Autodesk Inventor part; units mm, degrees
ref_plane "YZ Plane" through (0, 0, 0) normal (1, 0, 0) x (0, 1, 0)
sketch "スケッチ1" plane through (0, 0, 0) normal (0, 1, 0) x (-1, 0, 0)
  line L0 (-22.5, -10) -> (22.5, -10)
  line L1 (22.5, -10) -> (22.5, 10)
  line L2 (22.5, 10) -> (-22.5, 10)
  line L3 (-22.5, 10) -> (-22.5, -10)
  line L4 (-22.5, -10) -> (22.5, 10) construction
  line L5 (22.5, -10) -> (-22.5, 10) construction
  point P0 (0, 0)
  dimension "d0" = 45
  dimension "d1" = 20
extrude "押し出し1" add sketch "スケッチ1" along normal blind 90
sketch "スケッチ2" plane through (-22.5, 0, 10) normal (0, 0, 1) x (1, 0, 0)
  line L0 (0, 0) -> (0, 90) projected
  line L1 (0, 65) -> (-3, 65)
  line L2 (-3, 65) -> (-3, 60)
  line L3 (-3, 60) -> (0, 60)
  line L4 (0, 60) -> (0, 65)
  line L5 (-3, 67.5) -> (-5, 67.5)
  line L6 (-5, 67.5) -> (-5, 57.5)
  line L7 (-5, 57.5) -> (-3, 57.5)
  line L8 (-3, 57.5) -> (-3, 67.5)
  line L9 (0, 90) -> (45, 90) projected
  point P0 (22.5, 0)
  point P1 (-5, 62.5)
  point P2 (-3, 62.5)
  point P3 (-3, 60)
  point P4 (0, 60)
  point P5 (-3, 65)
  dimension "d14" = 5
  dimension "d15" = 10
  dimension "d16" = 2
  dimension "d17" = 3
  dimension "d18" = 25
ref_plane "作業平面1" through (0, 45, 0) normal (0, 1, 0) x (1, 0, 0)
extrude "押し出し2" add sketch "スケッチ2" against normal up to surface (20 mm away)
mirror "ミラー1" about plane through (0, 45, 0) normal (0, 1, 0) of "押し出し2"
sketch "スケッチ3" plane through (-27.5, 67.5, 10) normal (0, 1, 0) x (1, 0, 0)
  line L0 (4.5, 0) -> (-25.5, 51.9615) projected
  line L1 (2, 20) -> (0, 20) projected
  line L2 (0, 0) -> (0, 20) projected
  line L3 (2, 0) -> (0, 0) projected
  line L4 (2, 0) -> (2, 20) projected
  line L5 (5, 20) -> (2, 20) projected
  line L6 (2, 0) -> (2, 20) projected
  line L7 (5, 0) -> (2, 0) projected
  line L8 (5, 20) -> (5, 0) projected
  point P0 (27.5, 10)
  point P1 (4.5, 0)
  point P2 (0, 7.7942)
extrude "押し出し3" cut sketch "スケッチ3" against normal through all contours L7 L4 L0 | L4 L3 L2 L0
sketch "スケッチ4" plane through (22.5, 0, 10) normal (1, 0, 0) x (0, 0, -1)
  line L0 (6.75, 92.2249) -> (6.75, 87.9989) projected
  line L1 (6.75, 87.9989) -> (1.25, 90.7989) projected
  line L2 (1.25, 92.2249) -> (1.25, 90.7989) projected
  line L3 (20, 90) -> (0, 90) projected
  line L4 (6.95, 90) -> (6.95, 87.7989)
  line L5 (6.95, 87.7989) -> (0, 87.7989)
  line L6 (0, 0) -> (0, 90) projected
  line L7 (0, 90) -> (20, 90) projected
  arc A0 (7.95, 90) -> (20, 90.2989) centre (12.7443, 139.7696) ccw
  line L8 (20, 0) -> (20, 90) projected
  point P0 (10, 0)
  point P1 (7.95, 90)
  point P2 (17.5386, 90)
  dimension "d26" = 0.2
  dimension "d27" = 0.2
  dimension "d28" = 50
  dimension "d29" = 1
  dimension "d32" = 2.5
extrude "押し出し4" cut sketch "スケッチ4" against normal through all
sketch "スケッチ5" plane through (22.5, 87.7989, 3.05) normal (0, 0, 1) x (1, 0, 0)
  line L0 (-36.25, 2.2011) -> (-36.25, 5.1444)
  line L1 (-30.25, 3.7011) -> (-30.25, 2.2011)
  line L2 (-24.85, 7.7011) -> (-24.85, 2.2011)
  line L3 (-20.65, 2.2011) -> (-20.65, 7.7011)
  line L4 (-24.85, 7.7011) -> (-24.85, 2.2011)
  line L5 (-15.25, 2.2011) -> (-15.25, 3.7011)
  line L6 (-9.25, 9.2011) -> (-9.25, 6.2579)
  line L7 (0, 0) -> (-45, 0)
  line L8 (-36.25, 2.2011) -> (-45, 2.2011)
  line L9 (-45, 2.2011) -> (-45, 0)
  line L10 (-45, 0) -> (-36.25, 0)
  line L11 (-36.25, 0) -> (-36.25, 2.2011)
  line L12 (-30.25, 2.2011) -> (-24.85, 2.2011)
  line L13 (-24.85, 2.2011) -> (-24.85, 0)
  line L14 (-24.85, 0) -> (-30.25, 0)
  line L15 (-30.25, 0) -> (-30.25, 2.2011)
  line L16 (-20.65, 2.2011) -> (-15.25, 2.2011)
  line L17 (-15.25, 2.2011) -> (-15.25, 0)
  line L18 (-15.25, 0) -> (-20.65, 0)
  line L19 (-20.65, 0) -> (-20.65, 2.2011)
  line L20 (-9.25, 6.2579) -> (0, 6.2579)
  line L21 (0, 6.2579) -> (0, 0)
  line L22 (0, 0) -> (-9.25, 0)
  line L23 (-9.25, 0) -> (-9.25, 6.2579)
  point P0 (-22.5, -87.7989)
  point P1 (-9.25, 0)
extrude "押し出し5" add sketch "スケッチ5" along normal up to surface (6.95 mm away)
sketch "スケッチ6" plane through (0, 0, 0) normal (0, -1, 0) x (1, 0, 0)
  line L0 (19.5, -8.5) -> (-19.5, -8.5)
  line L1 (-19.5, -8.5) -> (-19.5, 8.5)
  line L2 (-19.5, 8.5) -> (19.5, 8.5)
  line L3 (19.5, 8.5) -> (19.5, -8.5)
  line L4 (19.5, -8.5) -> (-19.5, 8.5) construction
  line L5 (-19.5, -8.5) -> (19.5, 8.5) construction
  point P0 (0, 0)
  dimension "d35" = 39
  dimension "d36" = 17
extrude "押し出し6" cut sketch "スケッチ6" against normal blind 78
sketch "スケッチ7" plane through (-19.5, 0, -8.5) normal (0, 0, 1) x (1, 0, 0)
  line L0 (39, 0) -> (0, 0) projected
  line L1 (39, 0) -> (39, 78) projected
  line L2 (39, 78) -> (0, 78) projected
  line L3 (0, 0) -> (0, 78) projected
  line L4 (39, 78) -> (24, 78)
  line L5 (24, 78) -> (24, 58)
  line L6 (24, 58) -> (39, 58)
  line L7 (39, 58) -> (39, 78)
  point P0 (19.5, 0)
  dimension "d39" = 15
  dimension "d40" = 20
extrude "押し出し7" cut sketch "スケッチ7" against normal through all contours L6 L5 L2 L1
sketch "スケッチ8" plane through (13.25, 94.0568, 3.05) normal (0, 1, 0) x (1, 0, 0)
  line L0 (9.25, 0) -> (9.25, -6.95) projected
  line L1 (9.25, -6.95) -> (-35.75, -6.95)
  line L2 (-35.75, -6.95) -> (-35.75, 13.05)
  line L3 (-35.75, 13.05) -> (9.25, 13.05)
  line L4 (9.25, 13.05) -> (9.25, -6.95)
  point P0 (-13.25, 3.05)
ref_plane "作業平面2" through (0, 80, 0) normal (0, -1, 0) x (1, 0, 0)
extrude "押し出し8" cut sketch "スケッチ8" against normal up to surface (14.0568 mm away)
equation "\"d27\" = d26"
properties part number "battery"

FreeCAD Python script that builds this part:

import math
import FreeCAD as App
import Part
import Sketcher
Q = App.Units.Quantity

doc = App.newDocument("Part")
body = doc.addObject("PartDesign::Body", "Body")

sketch1 = body.newObject("Sketcher::SketchObject", "Sketch")
sketch1.AttachmentSupport = (doc.getObject("XZ_Plane"), [""])
sketch1.MapMode = "FlatFace"
sketch1.addGeometry([
    Part.LineSegment(App.Vector(22, 10, 0), App.Vector(22, -10, 0)),
    Part.LineSegment(App.Vector(22, -10, 0), App.Vector(-22, -10, 0)),
    Part.LineSegment(App.Vector(-22, -10, 0), App.Vector(-22, 10, 0)),
    Part.LineSegment(App.Vector(-22, 10, 0), App.Vector(22, 10, 0)),
], False)
sketch1.addConstraint([
    Sketcher.Constraint("Coincident", 0, 2, 1, 1),
    Sketcher.Constraint("Coincident", 1, 2, 2, 1),
    Sketcher.Constraint("Coincident", 2, 2, 3, 1),
    Sketcher.Constraint("Coincident", 3, 2, 0, 1),
    Sketcher.Constraint("Vertical", 0),
    Sketcher.Constraint("Horizontal", 1),
    Sketcher.Constraint("Vertical", 2),
    Sketcher.Constraint("Horizontal", 3),
    Sketcher.Constraint("Symmetric", 0, 2, 2, 2, -1, 1),
    Sketcher.Constraint("DistanceX", 1, 2, 1, 1, 45.0),
    Sketcher.Constraint("DistanceY", 0, 2, 0, 1, 20.0),
])
pad1 = body.newObject("PartDesign::Pad", "Pad")
pad1.Profile = sketch1
pad1.Length = 90
pad1.Reversed = True

sketch2 = body.newObject("Sketcher::SketchObject", "Sketch001")
sketch2.AttachmentSupport = (doc.getObject("XY_Plane"), [""])
sketch2.MapMode = "FlatFace"
sketch2.AttachmentOffset = App.Placement(App.Vector(0, 0, 10), App.Rotation())
sketch2.addGeometry([
    Part.LineSegment(App.Vector(-25.5, 60, 0), App.Vector(-22.5, 60, 0)),
    Part.LineSegment(App.Vector(-22.5, 60, 0), App.Vector(-22.5, 65, 0)),
    Part.LineSegment(App.Vector(-22.5, 65, 0), App.Vector(-25.5, 65, 0)),
    Part.LineSegment(App.Vector(-25.5, 65, 0), App.Vector(-25.5, 67.5, 0)),
    Part.LineSegment(App.Vector(-25.5, 67.5, 0), App.Vector(-27.5, 67.5, 0)),
    Part.LineSegment(App.Vector(-27.5, 67.5, 0), App.Vector(-27.5, 57.5, 0)),
    Part.LineSegment(App.Vector(-27.5, 57.5, 0), App.Vector(-25.5, 57.5, 0)),
    Part.LineSegment(App.Vector(-25.5, 57.5, 0), App.Vector(-25.5, 60, 0)),
], False)
sketch2.addConstraint([
    Sketcher.Constraint("Coincident", 0, 2, 1, 1),
    Sketcher.Constraint("Coincident", 1, 2, 2, 1),
    Sketcher.Constraint("Coincident", 2, 2, 3, 1),
    Sketcher.Constraint("Coincident", 3, 2, 4, 1),
    Sketcher.Constraint("Coincident", 4, 2, 5, 1),
    Sketcher.Constraint("Coincident", 5, 2, 6, 1),
    Sketcher.Constraint("Coincident", 6, 2, 7, 1),
    Sketcher.Constraint("Coincident", 7, 2, 0, 1),
    Sketcher.Constraint("Horizontal", 0),
    Sketcher.Constraint("Vertical", 1),
    Sketcher.Constraint("Horizontal", 2),
    Sketcher.Constraint("Vertical", 3),
    Sketcher.Constraint("Horizontal", 4),
    Sketcher.Constraint("Vertical", 5),
    Sketcher.Constraint("Horizontal", 6),
    Sketcher.Constraint("Vertical", 7),
    Sketcher.Constraint("Vertical", 3, 2, 6, 2),
    Sketcher.Constraint("Equal", 3, 7),
    Sketcher.Constraint("DistanceX", 0, 1, 0, 2, 3.0),
    Sketcher.Constraint("DistanceX", 4, 2, 4, 1, 2.0),
    Sketcher.Constraint("DistanceY", 1, 1, 1, 2, 5.0),
    Sketcher.Constraint("DistanceY", 5, 2, 5, 1, 10.0),
    Sketcher.Constraint("DistanceY", -1, 1, 0, 2, 60.0),
    Sketcher.Constraint("DistanceX", 0, 2, -1, 1, 22.5),
])
pad2 = body.newObject("PartDesign::Pad", "Pad001")
pad2.Profile = sketch2
pad2.Length = 20
pad2.Reversed = True
doc.recompute()

datumplane = body.newObject("PartDesign::Plane", "DatumPlane")
datumplane.AttachmentSupport = (doc.getObject("XZ_Plane"), [""])
datumplane.MapMode = "FlatFace"
datumplane.AttachmentOffset = App.Placement(App.Vector(0, 0, -45), App.Rotation())
mirrored = body.newObject("PartDesign::Mirrored", "Mirrored")
mirrored.Originals = [pad2]
mirrored.MirrorPlane = (datumplane, [""])
body.Tip = mirrored

sketch3 = body.newObject("Sketcher::SketchObject", "Sketch002")
sketch3.AttachmentSupport = (doc.getObject("XZ_Plane"), [""])
sketch3.MapMode = "FlatFace"
sketch3.AttachmentOffset = App.Placement(App.Vector(0, 0, -67.5), App.Rotation())
sketch3.addGeometry([
    Part.LineSegment(App.Vector(-23, 10, 0), App.Vector(-27.5, 2.2, 0)),
    Part.LineSegment(App.Vector(-27.5, 2.2, 0), App.Vector(-27.5, 10, 0)),
    Part.LineSegment(App.Vector(-27.5, 10, 0), App.Vector(-23, 10, 0)),
], False)
sketch3.addConstraint([
    Sketcher.Constraint("Coincident", 0, 2, 1, 1),
    Sketcher.Constraint("Coincident", 1, 2, 2, 1),
    Sketcher.Constraint("Coincident", 2, 2, 0, 1),
    Sketcher.Constraint("Vertical", 1),
    Sketcher.Constraint("Horizontal", 2),
    Sketcher.Constraint("Angle", 0, Q("-120 deg")),
    Sketcher.Constraint("Distance", 0, 9.0),
    Sketcher.Constraint("DistanceY", -1, 1, 1, 2, 10.0),
    Sketcher.Constraint("DistanceX", 2, 2, -1, 1, 23.0),
])
pocket1 = body.newObject("PartDesign::Pocket", "Pocket")
pocket1.Profile = sketch3
pocket1.Type = "ThroughAll"
pocket1.Reversed = True

sketch4 = body.newObject("Sketcher::SketchObject", "Sketch003")
sketch4.AttachmentSupport = (doc.getObject("YZ_Plane"), [""])
sketch4.MapMode = "FlatFace"
sketch4.AttachmentOffset = App.Placement(App.Vector(0, 0, 22.5), App.Rotation())
sketch4.addGeometry([
    Part.LineSegment(App.Vector(90, 3, 0), App.Vector(90, 10, 0)),
    Part.LineSegment(App.Vector(90, 10, 0), App.Vector(87.8, 10, 0)),
    Part.LineSegment(App.Vector(87.8, 10, 0), App.Vector(87.8, 3, 0)),
    Part.LineSegment(App.Vector(87.8, 3, 0), App.Vector(90, 3, 0)),
    Part.LineSegment(App.Vector(90, -7.5, 0), App.Vector(90, 2, 0)),
    Part.ArcOfCircle(Part.Circle(App.Vector(139.8, -2.7, 0), App.Vector(0, 0, 1), 50), math.radians(174.5), math.radians(185.5)),
], False)
sketch4.addConstraint([
    Sketcher.Constraint("Coincident", 0, 2, 1, 1),
    Sketcher.Constraint("Coincident", 1, 2, 2, 1),
    Sketcher.Constraint("Coincident", 2, 2, 3, 1),
    Sketcher.Constraint("Coincident", 3, 2, 0, 1),
    Sketcher.Constraint("Coincident", 4, 1, 5, 2),
    Sketcher.Constraint("Coincident", 5, 1, 4, 2),
    Sketcher.Constraint("Vertical", 0),
    Sketcher.Constraint("Horizontal", 1),
    Sketcher.Constraint("Vertical", 2),
    Sketcher.Constraint("Horizontal", 3),
    Sketcher.Constraint("Vertical", 4),
    Sketcher.Constraint("Vertical", 3, 2, 4, 1),
    Sketcher.Constraint("DistanceY", 5, 1, 3, 2, 1.0),
    Sketcher.Constraint("DistanceX", -1, 1, 0, 2, 90.0),
    Sketcher.Constraint("DistanceY", -1, 1, 0, 2, 10.0),
    Sketcher.Constraint("Radius", 5, 49.998),
    Sketcher.Constraint("DistanceY", 0, 1, 0, 2, 6.95),
    Sketcher.Constraint("DistanceX", 1, 2, 1, 1, 2.201),
    Sketcher.Constraint("DistanceY", 4, 1, 4, 2, 9.5885),
])
pocket2 = body.newObject("PartDesign::Pocket", "Pocket001")
pocket2.Profile = sketch4
pocket2.Type = "ThroughAll"

sketch5 = body.newObject("Sketcher::SketchObject", "Sketch004")
sketch5.AttachmentSupport = (doc.getObject("XY_Plane"), [""])
sketch5.MapMode = "FlatFace"
sketch5.AttachmentOffset = App.Placement(App.Vector(0, 0, 3.05), App.Rotation())
sketch5.addGeometry([
    Part.LineSegment(App.Vector(-22.5, 87.8, 0), App.Vector(-13.8, 87.8, 0)),
    Part.LineSegment(App.Vector(-13.8, 87.8, 0), App.Vector(-13.8, 90, 0)),
    Part.LineSegment(App.Vector(-13.8, 90, 0), App.Vector(-22.5, 90, 0)),
    Part.LineSegment(App.Vector(-22.5, 90, 0), App.Vector(-22.5, 87.8, 0)),
    Part.LineSegment(App.Vector(-7.8, 87.8, 0), App.Vector(-2.4, 87.8, 0)),
    Part.LineSegment(App.Vector(-2.4, 87.8, 0), App.Vector(-2.4, 90, 0)),
    Part.LineSegment(App.Vector(-2.4, 90, 0), App.Vector(-7.8, 90, 0)),
    Part.LineSegment(App.Vector(-7.8, 90, 0), App.Vector(-7.8, 87.8, 0)),
    Part.LineSegment(App.Vector(1.9, 87.8, 0), App.Vector(7.2, 87.8, 0)),
    Part.LineSegment(App.Vector(7.2, 87.8, 0), App.Vector(7.2, 90, 0)),
    Part.LineSegment(App.Vector(7.2, 90, 0), App.Vector(1.9, 90, 0)),
    Part.LineSegment(App.Vector(1.9, 90, 0), App.Vector(1.9, 87.8, 0)),
    Part.LineSegment(App.Vector(13.2, 87.8, 0), App.Vector(22.5, 87.8, 0)),
    Part.LineSegment(App.Vector(22.5, 87.8, 0), App.Vector(22.5, 94.1, 0)),
    Part.LineSegment(App.Vector(22.5, 94.1, 0), App.Vector(13.2, 94.1, 0)),
    Part.LineSegment(App.Vector(13.2, 94.1, 0), App.Vector(13.2, 87.8, 0)),
], False)
sketch5.addConstraint([
    Sketcher.Constraint("Coincident", 0, 2, 1, 1),
    Sketcher.Constraint("Coincident", 1, 2, 2, 1),
    Sketcher.Constraint("Coincident", 2, 2, 3, 1),
    Sketcher.Constraint("Coincident", 3, 2, 0, 1),
    Sketcher.Constraint("Coincident", 4, 2, 5, 1),
    Sketcher.Constraint("Coincident", 5, 2, 6, 1),
    Sketcher.Constraint("Coincident", 6, 2, 7, 1),
    Sketcher.Constraint("Coincident", 7, 2, 4, 1),
    Sketcher.Constraint("Coincident", 8, 2, 9, 1),
    Sketcher.Constraint("Coincident", 9, 2, 10, 1),
    Sketcher.Constraint("Coincident", 10, 2, 11, 1),
    Sketcher.Constraint("Coincident", 11, 2, 8, 1),
    Sketcher.Constraint("Coincident", 12, 2, 13, 1),
    Sketcher.Constraint("Coincident", 13, 2, 14, 1),
    Sketcher.Constraint("Coincident", 14, 2, 15, 1),
    Sketcher.Constraint("Coincident", 15, 2, 12, 1),
    Sketcher.Constraint("Horizontal", 0),
    Sketcher.Constraint("Vertical", 1),
    Sketcher.Constraint("Horizontal", 2),
    Sketcher.Constraint("Vertical", 3),
    Sketcher.Constraint("Horizontal", 4),
    Sketcher.Constraint("Vertical", 5),
    Sketcher.Constraint("Horizontal", 6),
    Sketcher.Constraint("Vertical", 7),
    Sketcher.Constraint("Horizontal", 8),
    Sketcher.Constraint("Vertical", 9),
    Sketcher.Constraint("Horizontal", 10),
    Sketcher.Constraint("Vertical", 11),
    Sketcher.Constraint("Horizontal", 12),
    Sketcher.Constraint("Vertical", 13),
    Sketcher.Constraint("Horizontal", 14),
    Sketcher.Constraint("Vertical", 15),
    Sketcher.Constraint("Symmetric", 3, 2, 12, 2, -2),
    Sketcher.Constraint("Horizontal", 3, 2, 4, 2),
    Sketcher.Constraint("Horizontal", 2, 2, 5, 2),
    Sketcher.Constraint("Horizontal", 7, 2, 8, 2),
    Sketcher.Constraint("Horizontal", 6, 2, 9, 2),
    Sketcher.Constraint("Equal", 6, 8),
    Sketcher.Constraint("DistanceX", 4, 1, 4, 2, 5.4),
    Sketcher.Constraint("DistanceY", -1, 1, 1, 2, 90.0),
    Sketcher.Constraint("DistanceX", 1, 2, 6, 2, 6.0),
    Sketcher.Constraint("DistanceX", 7, 2, 8, 2, 15.0),
    Sketcher.Constraint("DistanceX", 9, 2, 14, 2, 6.0),
    Sketcher.Constraint("DistanceX", 0, 1, 0, 2, 8.75),
    Sketcher.Constraint("DistanceX", 12, 1, 12, 2, 9.25),
    Sketcher.Constraint("DistanceY", 1, 1, 1, 2, 2.201),
    Sketcher.Constraint("DistanceY", 13, 1, 13, 2, 6.258),
])
pad3 = body.newObject("PartDesign::Pad", "Pad002")
pad3.Profile = sketch5
pad3.Length = 6.95

sketch6 = body.newObject("Sketcher::SketchObject", "Sketch005")
sketch6.AttachmentSupport = (doc.getObject("XZ_Plane"), [""])
sketch6.MapMode = "FlatFace"
sketch6.addGeometry([
    Part.LineSegment(App.Vector(-20, -8, 0), App.Vector(20, -8, 0)),
    Part.LineSegment(App.Vector(20, -8, 0), App.Vector(20, 8, 0)),
    Part.LineSegment(App.Vector(20, 8, 0), App.Vector(-20, 8, 0)),
    Part.LineSegment(App.Vector(-20, 8, 0), App.Vector(-20, -8, 0)),
], False)
sketch6.addConstraint([
    Sketcher.Constraint("Coincident", 0, 2, 1, 1),
    Sketcher.Constraint("Coincident", 1, 2, 2, 1),
    Sketcher.Constraint("Coincident", 2, 2, 3, 1),
    Sketcher.Constraint("Coincident", 3, 2, 0, 1),
    Sketcher.Constraint("Horizontal", 0),
    Sketcher.Constraint("Vertical", 1),
    Sketcher.Constraint("Horizontal", 2),
    Sketcher.Constraint("Vertical", 3),
    Sketcher.Constraint("Symmetric", 0, 2, 2, 2, -1, 1),
    Sketcher.Constraint("DistanceX", 0, 1, 0, 2, 39.0),
    Sketcher.Constraint("DistanceY", 1, 1, 1, 2, 17.0),
])
pocket3 = body.newObject("PartDesign::Pocket", "Pocket002")
pocket3.Profile = sketch6
pocket3.Length = 78

sketch7 = body.newObject("Sketcher::SketchObject", "Sketch006")
sketch7.AttachmentSupport = (doc.getObject("XY_Plane"), [""])
sketch7.MapMode = "FlatFace"
sketch7.AttachmentOffset = App.Placement(App.Vector(0, 0, -8.5), App.Rotation())
sketch7.addGeometry([
    Part.LineSegment(App.Vector(4, 58, 0), App.Vector(20, 58, 0)),
    Part.LineSegment(App.Vector(20, 58, 0), App.Vector(20, 78, 0)),
    Part.LineSegment(App.Vector(20, 78, 0), App.Vector(4, 78, 0)),
    Part.LineSegment(App.Vector(4, 78, 0), App.Vector(4, 58, 0)),
], False)
sketch7.addConstraint([
    Sketcher.Constraint("Coincident", 0, 2, 1, 1),
    Sketcher.Constraint("Coincident", 1, 2, 2, 1),
    Sketcher.Constraint("Coincident", 2, 2, 3, 1),
    Sketcher.Constraint("Coincident", 3, 2, 0, 1),
    Sketcher.Constraint("Horizontal", 0),
    Sketcher.Constraint("Vertical", 1),
    Sketcher.Constraint("Horizontal", 2),
    Sketcher.Constraint("Vertical", 3),
    Sketcher.Constraint("DistanceX", 0, 1, 0, 2, 15.0),
    Sketcher.Constraint("DistanceY", 1, 1, 1, 2, 20.0),
    Sketcher.Constraint("DistanceY", -1, 1, 0, 2, 58.0),
    Sketcher.Constraint("DistanceX", -1, 1, 0, 2, 19.5),
])
pocket4 = body.newObject("PartDesign::Pocket", "Pocket003")
pocket4.Profile = sketch7
pocket4.Type = "ThroughAll"

sketch8 = body.newObject("Sketcher::SketchObject", "Sketch007")
sketch8.AttachmentSupport = (doc.getObject("XZ_Plane"), [""])
sketch8.MapMode = "FlatFace"
sketch8.AttachmentOffset = App.Placement(App.Vector(0, 0, -94.0568), App.Rotation())
sketch8.addGeometry([
    Part.LineSegment(App.Vector(22, 10, 0), App.Vector(22, -10, 0)),
    Part.LineSegment(App.Vector(22, -10, 0), App.Vector(-22, -10, 0)),
    Part.LineSegment(App.Vector(-22, -10, 0), App.Vector(-22, 10, 0)),
    Part.LineSegment(App.Vector(-22, 10, 0), App.Vector(22, 10, 0)),
], False)
sketch8.addConstraint([
    Sketcher.Constraint("Coincident", 0, 2, 1, 1),
    Sketcher.Constraint("Coincident", 1, 2, 2, 1),
    Sketcher.Constraint("Coincident", 2, 2, 3, 1),
    Sketcher.Constraint("Coincident", 3, 2, 0, 1),
    Sketcher.Constraint("Vertical", 0),
    Sketcher.Constraint("Horizontal", 1),
    Sketcher.Constraint("Vertical", 2),
    Sketcher.Constraint("Horizontal", 3),
    Sketcher.Constraint("Symmetric", 0, 2, 2, 2, -1, 1),
    Sketcher.Constraint("DistanceX", 1, 2, 1, 1, 45.0),
    Sketcher.Constraint("DistanceY", 0, 2, 0, 1, 20.0),
])
pocket5 = body.newObject("PartDesign::Pocket", "Pocket004")
pocket5.Profile = sketch8
pocket5.Length = 14.0568
pocket5.Reversed = True

doc.recompute()
